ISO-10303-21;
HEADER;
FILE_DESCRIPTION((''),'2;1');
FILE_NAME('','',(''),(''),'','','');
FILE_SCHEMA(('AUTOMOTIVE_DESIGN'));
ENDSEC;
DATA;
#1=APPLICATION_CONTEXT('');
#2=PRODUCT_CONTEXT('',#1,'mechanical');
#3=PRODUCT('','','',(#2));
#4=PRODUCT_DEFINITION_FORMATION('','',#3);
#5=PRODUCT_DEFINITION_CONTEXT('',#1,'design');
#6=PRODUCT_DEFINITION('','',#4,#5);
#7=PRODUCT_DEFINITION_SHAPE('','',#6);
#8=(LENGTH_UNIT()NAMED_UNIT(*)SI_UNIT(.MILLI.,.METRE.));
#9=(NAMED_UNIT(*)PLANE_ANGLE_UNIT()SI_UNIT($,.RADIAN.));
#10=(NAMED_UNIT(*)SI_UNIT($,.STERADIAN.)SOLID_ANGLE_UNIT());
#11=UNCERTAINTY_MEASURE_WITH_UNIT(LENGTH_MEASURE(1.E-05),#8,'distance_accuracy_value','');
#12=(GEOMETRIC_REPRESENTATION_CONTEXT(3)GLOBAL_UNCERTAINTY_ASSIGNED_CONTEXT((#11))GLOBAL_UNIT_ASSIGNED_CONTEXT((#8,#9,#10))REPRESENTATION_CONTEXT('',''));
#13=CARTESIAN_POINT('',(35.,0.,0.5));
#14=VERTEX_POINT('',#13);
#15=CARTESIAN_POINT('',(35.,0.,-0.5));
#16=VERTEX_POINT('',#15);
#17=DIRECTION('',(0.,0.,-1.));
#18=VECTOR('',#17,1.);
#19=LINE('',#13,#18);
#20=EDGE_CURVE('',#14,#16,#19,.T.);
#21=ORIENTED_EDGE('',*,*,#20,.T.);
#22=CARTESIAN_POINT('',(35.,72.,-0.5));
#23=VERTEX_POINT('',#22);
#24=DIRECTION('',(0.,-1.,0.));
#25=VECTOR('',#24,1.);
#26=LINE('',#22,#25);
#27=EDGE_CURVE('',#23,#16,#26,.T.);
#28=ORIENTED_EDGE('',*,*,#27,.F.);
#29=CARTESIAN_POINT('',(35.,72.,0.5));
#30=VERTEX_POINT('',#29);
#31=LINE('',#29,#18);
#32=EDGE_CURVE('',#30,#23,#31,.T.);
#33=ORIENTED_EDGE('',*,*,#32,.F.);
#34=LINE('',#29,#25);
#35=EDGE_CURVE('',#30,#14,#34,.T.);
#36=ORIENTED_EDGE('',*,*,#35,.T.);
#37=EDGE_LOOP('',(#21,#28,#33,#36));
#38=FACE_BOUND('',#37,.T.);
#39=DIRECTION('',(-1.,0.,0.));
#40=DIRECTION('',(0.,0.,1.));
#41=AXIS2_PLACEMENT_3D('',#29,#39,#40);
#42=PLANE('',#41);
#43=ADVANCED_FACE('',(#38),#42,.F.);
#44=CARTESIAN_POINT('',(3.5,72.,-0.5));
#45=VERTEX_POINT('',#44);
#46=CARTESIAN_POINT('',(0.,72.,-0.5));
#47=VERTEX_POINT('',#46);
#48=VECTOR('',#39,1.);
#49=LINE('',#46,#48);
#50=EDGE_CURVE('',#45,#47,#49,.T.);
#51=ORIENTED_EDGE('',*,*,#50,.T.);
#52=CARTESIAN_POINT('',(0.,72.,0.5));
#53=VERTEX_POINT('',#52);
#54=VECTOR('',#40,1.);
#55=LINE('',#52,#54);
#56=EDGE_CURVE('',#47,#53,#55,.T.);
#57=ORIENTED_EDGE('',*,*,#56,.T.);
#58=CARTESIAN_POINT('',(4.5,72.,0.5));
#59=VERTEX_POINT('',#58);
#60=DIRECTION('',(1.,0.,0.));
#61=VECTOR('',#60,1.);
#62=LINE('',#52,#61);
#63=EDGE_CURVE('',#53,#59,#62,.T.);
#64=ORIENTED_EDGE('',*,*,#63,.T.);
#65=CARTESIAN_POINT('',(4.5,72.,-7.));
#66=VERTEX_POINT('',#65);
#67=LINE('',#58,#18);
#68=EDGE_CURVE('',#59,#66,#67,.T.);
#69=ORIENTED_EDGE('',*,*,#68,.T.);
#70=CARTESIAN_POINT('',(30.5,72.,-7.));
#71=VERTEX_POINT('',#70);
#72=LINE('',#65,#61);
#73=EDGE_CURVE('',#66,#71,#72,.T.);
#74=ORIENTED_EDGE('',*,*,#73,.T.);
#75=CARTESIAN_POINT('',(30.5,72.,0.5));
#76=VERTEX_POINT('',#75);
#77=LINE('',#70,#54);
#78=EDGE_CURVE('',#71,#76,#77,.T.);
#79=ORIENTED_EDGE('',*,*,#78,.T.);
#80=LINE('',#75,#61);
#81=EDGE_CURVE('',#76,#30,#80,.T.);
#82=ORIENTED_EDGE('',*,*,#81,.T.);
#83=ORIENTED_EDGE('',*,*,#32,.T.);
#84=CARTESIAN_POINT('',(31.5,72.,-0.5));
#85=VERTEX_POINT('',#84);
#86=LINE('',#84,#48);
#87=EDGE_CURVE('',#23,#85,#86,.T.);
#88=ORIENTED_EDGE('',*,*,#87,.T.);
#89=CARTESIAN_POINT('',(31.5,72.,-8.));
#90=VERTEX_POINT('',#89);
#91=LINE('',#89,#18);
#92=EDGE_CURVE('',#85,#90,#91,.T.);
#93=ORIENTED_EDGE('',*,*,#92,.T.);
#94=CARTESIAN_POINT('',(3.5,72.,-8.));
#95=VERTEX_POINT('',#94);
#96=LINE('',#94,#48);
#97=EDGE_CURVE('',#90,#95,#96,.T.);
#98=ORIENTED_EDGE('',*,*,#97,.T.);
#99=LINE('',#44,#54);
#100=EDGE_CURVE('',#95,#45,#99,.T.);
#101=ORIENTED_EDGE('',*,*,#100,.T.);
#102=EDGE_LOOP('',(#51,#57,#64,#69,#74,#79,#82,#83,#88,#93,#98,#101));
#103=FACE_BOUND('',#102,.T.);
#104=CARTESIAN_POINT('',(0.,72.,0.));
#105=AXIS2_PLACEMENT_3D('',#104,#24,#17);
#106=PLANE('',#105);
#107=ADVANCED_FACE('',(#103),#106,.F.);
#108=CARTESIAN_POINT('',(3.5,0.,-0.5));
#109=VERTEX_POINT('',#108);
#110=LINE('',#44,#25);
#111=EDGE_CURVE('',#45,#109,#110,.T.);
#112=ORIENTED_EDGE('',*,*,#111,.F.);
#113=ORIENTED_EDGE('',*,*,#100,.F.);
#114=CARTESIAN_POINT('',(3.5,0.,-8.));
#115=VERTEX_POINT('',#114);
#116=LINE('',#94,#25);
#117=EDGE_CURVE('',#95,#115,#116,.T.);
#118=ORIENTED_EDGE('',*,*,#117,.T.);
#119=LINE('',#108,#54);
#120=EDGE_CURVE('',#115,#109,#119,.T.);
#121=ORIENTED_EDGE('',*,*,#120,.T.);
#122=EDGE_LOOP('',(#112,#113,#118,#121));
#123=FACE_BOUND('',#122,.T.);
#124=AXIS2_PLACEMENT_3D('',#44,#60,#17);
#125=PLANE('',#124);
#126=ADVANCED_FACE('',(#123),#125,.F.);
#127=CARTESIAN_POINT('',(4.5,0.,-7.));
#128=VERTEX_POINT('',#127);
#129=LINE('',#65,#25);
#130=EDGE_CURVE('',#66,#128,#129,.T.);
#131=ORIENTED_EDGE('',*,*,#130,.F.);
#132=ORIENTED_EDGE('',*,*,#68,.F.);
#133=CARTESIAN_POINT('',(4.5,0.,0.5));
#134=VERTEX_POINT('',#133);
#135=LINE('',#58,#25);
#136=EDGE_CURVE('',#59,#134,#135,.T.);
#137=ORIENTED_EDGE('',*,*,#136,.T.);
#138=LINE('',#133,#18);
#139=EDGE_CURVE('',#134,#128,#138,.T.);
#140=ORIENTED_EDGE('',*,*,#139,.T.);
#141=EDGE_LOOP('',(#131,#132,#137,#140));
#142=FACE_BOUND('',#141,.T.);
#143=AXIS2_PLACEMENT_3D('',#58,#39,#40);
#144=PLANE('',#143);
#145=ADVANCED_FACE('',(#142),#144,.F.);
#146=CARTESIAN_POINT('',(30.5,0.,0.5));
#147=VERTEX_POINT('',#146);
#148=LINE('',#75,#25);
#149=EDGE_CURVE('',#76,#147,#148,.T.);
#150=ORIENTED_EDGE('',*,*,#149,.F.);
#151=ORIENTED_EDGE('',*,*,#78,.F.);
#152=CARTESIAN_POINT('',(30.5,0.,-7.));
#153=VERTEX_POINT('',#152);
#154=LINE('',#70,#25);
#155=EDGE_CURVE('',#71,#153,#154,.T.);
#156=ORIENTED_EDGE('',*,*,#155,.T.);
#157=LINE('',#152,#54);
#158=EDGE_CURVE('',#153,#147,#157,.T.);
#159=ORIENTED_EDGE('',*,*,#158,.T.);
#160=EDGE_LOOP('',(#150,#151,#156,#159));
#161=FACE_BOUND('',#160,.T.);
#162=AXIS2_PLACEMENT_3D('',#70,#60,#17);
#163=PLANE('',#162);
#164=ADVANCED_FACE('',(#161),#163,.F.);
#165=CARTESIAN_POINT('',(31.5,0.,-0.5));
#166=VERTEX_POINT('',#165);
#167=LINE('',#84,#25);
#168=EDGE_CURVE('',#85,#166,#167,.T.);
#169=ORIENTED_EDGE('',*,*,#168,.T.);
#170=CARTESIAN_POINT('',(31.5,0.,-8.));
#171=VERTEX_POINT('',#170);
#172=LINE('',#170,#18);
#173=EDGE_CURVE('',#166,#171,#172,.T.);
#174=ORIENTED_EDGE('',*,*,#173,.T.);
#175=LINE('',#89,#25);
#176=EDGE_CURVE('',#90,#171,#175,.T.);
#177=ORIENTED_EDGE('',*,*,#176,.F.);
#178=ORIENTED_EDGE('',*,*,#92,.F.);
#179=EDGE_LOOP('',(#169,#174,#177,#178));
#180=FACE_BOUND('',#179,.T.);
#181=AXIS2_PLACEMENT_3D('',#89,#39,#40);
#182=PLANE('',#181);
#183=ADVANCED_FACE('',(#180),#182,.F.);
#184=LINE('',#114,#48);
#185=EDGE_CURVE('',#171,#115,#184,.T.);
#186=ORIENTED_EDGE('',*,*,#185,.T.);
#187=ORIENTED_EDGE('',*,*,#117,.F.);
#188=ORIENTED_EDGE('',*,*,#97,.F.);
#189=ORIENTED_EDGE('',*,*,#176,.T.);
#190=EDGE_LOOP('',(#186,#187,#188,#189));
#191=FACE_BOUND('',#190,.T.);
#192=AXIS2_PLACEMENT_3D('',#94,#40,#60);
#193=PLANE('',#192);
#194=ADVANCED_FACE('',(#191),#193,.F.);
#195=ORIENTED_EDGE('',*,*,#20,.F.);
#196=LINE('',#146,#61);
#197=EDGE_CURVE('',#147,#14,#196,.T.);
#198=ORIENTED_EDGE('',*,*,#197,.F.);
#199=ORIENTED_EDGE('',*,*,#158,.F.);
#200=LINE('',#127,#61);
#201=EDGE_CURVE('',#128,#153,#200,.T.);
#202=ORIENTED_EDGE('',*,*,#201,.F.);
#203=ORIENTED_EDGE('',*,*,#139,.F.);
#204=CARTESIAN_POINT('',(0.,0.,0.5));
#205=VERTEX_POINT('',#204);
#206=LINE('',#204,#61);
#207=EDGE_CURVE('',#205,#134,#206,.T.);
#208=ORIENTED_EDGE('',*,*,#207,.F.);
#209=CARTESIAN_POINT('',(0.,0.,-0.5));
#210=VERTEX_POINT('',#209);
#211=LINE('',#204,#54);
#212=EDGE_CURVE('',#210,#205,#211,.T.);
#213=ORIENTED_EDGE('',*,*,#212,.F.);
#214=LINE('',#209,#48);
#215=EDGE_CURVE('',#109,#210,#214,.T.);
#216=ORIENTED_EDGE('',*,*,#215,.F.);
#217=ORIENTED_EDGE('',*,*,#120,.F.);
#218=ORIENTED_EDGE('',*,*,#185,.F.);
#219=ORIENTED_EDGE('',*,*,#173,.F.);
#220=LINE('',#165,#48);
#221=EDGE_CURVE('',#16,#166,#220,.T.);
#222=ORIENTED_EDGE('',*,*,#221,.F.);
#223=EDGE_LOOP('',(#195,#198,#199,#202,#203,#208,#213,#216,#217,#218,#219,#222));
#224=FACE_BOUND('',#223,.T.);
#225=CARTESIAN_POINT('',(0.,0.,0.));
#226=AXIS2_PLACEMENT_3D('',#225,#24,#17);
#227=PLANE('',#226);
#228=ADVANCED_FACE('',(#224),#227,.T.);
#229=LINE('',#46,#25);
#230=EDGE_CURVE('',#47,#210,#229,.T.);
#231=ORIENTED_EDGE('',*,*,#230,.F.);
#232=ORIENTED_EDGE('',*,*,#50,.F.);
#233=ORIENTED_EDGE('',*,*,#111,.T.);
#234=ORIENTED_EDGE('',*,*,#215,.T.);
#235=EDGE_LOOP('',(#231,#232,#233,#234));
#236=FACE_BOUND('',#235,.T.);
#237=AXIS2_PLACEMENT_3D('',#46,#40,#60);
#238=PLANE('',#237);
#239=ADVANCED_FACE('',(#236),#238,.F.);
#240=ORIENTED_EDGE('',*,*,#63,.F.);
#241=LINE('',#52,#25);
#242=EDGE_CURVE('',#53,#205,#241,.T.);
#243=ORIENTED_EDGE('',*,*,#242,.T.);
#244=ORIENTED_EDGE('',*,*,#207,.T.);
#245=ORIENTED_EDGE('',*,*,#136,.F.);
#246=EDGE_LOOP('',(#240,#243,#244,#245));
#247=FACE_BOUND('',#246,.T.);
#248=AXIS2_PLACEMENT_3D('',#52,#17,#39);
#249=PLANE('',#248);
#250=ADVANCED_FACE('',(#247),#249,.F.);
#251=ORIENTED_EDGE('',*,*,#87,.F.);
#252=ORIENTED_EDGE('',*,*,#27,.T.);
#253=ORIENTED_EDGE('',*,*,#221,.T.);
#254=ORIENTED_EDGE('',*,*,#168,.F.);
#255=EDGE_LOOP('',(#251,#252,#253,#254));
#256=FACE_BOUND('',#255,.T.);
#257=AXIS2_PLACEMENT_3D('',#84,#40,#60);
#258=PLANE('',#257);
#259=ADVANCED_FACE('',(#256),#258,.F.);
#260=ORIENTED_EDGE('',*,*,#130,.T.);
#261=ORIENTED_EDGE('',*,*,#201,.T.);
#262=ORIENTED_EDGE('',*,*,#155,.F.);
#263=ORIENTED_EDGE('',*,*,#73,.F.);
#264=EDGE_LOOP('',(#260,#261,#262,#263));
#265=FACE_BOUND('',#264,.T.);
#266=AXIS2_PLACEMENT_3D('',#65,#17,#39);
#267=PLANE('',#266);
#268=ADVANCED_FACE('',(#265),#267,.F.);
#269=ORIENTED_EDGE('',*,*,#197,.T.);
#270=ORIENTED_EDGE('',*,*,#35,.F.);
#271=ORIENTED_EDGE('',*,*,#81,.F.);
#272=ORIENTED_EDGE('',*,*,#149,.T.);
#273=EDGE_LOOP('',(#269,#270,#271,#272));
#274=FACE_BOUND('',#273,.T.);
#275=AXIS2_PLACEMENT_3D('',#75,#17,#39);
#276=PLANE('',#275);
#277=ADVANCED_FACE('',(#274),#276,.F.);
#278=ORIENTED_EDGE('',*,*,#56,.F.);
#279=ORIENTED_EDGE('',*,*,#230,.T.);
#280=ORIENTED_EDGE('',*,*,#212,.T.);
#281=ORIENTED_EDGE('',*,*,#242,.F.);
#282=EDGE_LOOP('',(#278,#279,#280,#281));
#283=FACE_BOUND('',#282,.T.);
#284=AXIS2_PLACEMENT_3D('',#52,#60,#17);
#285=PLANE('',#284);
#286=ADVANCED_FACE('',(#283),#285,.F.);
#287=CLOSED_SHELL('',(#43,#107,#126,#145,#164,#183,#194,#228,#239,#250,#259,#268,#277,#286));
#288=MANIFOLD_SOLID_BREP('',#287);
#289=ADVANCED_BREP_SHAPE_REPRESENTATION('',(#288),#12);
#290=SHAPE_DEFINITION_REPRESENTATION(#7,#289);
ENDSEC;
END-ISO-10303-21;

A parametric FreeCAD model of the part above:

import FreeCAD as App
import Part
import Sketcher

V = App.Vector
Q = App.Units.Quantity

doc = App.newDocument("Part")
body = doc.addObject("PartDesign::Body", "Body")

sketch1 = body.newObject("Sketcher::SketchObject", "Sketch")
sketch1.AttachmentSupport = (doc.getObject("XZ_Plane"), [""])
sketch1.MapMode = "FlatFace"
sketch1.addGeometry(Part.LineSegment(V(0, 0.5, 0), V(4.5, 0.5, 0)), False)
sketch1.addGeometry(Part.LineSegment(V(4.5, 0.5, 0), V(4.5, -7, 0)), False)
sketch1.addGeometry(Part.LineSegment(V(4.5, -7, 0), V(30.5, -7, 0)), False)
sketch1.addGeometry(Part.LineSegment(V(30.5, -7, 0), V(30.5, 0.5, 0)), False)
sketch1.addGeometry(Part.LineSegment(V(30.5, 0.5, 0), V(35, 0.5, 0)), False)
sketch1.addGeometry(Part.LineSegment(V(35, 0.5, 0), V(35, -0.5, 0)), False)
sketch1.addGeometry(Part.LineSegment(V(35, -0.5, 0), V(31.5, -0.5, 0)), False)
sketch1.addGeometry(Part.LineSegment(V(31.5, -0.5, 0), V(31.5, -8, 0)), False)
sketch1.addGeometry(Part.LineSegment(V(31.5, -8, 0), V(3.5, -8, 0)), False)
sketch1.addGeometry(Part.LineSegment(V(3.5, -8, 0), V(3.5, -0.5, 0)), False)
sketch1.addGeometry(Part.LineSegment(V(3.5, -0.5, 0), V(0, -0.5, 0)), False)
sketch1.addGeometry(Part.LineSegment(V(0, -0.5, 0), V(0, 0.5, 0)), False)
sketch1.addConstraint(Sketcher.Constraint("Coincident", 0, 2, 1, 1))
sketch1.addConstraint(Sketcher.Constraint("Coincident", 1, 2, 2, 1))
sketch1.addConstraint(Sketcher.Constraint("Coincident", 2, 2, 3, 1))
sketch1.addConstraint(Sketcher.Constraint("Coincident", 3, 2, 4, 1))
sketch1.addConstraint(Sketcher.Constraint("Coincident", 4, 2, 5, 1))
sketch1.addConstraint(Sketcher.Constraint("Coincident", 5, 2, 6, 1))
sketch1.addConstraint(Sketcher.Constraint("Coincident", 6, 2, 7, 1))
sketch1.addConstraint(Sketcher.Constraint("Coincident", 7, 2, 8, 1))
sketch1.addConstraint(Sketcher.Constraint("Coincident", 8, 2, 9, 1))
sketch1.addConstraint(Sketcher.Constraint("Coincident", 9, 2, 10, 1))
sketch1.addConstraint(Sketcher.Constraint("Coincident", 10, 2, 11, 1))
sketch1.addConstraint(Sketcher.Constraint("Coincident", 11, 2, 0, 1))
sketch1.addConstraint(Sketcher.Constraint("Horizontal", 0))
sketch1.addConstraint(Sketcher.Constraint("Vertical", 1))
sketch1.addConstraint(Sketcher.Constraint("Horizontal", 2))
sketch1.addConstraint(Sketcher.Constraint("Vertical", 3))
sketch1.addConstraint(Sketcher.Constraint("Horizontal", 4))
sketch1.addConstraint(Sketcher.Constraint("Vertical", 5))
sketch1.addConstraint(Sketcher.Constraint("Horizontal", 6))
sketch1.addConstraint(Sketcher.Constraint("Vertical", 7))
sketch1.addConstraint(Sketcher.Constraint("Horizontal", 8))
sketch1.addConstraint(Sketcher.Constraint("Vertical", 9))
sketch1.addConstraint(Sketcher.Constraint("Horizontal", 10))
sketch1.addConstraint(Sketcher.Constraint("Vertical", 11))
sketch1.addConstraint(Sketcher.Constraint("Symmetric", 10, 2, 11, 2, -1, 1))
sketch1.addConstraint(Sketcher.Constraint("Horizontal", 0, 2, 3, 2))
sketch1.addConstraint(Sketcher.Constraint("Horizontal", 6, 2, 9, 2))
sketch1.addConstraint(Sketcher.Constraint("Equal", 0, 4))
sketch1.addConstraint(Sketcher.Constraint("Equal", 6, 10))
sketch1.addConstraint(Sketcher.Constraint("Equal", 3, 7))
sketch1.addConstraint(Sketcher.Constraint("DistanceX", 2, 1, 2, 2, Q("26 mm")))
sketch1.addConstraint(Sketcher.Constraint("DistanceX", 8, 2, 8, 1, Q("28 mm")))
sketch1.addConstraint(Sketcher.Constraint("DistanceY", 5, 2, 5, 1, Q("1 mm")))
sketch1.addConstraint(Sketcher.Constraint("DistanceX", 0, 1, 0, 2, Q("4.5 mm")))
sketch1.addConstraint(Sketcher.Constraint("DistanceY", 1, 2, 1, 1, Q("7.5 mm")))
pad1 = body.newObject("PartDesign::Pad", "Pad")
pad1.Profile = sketch1
pad1.Length = 72
pad1.Reversed = True

doc.recompute()
